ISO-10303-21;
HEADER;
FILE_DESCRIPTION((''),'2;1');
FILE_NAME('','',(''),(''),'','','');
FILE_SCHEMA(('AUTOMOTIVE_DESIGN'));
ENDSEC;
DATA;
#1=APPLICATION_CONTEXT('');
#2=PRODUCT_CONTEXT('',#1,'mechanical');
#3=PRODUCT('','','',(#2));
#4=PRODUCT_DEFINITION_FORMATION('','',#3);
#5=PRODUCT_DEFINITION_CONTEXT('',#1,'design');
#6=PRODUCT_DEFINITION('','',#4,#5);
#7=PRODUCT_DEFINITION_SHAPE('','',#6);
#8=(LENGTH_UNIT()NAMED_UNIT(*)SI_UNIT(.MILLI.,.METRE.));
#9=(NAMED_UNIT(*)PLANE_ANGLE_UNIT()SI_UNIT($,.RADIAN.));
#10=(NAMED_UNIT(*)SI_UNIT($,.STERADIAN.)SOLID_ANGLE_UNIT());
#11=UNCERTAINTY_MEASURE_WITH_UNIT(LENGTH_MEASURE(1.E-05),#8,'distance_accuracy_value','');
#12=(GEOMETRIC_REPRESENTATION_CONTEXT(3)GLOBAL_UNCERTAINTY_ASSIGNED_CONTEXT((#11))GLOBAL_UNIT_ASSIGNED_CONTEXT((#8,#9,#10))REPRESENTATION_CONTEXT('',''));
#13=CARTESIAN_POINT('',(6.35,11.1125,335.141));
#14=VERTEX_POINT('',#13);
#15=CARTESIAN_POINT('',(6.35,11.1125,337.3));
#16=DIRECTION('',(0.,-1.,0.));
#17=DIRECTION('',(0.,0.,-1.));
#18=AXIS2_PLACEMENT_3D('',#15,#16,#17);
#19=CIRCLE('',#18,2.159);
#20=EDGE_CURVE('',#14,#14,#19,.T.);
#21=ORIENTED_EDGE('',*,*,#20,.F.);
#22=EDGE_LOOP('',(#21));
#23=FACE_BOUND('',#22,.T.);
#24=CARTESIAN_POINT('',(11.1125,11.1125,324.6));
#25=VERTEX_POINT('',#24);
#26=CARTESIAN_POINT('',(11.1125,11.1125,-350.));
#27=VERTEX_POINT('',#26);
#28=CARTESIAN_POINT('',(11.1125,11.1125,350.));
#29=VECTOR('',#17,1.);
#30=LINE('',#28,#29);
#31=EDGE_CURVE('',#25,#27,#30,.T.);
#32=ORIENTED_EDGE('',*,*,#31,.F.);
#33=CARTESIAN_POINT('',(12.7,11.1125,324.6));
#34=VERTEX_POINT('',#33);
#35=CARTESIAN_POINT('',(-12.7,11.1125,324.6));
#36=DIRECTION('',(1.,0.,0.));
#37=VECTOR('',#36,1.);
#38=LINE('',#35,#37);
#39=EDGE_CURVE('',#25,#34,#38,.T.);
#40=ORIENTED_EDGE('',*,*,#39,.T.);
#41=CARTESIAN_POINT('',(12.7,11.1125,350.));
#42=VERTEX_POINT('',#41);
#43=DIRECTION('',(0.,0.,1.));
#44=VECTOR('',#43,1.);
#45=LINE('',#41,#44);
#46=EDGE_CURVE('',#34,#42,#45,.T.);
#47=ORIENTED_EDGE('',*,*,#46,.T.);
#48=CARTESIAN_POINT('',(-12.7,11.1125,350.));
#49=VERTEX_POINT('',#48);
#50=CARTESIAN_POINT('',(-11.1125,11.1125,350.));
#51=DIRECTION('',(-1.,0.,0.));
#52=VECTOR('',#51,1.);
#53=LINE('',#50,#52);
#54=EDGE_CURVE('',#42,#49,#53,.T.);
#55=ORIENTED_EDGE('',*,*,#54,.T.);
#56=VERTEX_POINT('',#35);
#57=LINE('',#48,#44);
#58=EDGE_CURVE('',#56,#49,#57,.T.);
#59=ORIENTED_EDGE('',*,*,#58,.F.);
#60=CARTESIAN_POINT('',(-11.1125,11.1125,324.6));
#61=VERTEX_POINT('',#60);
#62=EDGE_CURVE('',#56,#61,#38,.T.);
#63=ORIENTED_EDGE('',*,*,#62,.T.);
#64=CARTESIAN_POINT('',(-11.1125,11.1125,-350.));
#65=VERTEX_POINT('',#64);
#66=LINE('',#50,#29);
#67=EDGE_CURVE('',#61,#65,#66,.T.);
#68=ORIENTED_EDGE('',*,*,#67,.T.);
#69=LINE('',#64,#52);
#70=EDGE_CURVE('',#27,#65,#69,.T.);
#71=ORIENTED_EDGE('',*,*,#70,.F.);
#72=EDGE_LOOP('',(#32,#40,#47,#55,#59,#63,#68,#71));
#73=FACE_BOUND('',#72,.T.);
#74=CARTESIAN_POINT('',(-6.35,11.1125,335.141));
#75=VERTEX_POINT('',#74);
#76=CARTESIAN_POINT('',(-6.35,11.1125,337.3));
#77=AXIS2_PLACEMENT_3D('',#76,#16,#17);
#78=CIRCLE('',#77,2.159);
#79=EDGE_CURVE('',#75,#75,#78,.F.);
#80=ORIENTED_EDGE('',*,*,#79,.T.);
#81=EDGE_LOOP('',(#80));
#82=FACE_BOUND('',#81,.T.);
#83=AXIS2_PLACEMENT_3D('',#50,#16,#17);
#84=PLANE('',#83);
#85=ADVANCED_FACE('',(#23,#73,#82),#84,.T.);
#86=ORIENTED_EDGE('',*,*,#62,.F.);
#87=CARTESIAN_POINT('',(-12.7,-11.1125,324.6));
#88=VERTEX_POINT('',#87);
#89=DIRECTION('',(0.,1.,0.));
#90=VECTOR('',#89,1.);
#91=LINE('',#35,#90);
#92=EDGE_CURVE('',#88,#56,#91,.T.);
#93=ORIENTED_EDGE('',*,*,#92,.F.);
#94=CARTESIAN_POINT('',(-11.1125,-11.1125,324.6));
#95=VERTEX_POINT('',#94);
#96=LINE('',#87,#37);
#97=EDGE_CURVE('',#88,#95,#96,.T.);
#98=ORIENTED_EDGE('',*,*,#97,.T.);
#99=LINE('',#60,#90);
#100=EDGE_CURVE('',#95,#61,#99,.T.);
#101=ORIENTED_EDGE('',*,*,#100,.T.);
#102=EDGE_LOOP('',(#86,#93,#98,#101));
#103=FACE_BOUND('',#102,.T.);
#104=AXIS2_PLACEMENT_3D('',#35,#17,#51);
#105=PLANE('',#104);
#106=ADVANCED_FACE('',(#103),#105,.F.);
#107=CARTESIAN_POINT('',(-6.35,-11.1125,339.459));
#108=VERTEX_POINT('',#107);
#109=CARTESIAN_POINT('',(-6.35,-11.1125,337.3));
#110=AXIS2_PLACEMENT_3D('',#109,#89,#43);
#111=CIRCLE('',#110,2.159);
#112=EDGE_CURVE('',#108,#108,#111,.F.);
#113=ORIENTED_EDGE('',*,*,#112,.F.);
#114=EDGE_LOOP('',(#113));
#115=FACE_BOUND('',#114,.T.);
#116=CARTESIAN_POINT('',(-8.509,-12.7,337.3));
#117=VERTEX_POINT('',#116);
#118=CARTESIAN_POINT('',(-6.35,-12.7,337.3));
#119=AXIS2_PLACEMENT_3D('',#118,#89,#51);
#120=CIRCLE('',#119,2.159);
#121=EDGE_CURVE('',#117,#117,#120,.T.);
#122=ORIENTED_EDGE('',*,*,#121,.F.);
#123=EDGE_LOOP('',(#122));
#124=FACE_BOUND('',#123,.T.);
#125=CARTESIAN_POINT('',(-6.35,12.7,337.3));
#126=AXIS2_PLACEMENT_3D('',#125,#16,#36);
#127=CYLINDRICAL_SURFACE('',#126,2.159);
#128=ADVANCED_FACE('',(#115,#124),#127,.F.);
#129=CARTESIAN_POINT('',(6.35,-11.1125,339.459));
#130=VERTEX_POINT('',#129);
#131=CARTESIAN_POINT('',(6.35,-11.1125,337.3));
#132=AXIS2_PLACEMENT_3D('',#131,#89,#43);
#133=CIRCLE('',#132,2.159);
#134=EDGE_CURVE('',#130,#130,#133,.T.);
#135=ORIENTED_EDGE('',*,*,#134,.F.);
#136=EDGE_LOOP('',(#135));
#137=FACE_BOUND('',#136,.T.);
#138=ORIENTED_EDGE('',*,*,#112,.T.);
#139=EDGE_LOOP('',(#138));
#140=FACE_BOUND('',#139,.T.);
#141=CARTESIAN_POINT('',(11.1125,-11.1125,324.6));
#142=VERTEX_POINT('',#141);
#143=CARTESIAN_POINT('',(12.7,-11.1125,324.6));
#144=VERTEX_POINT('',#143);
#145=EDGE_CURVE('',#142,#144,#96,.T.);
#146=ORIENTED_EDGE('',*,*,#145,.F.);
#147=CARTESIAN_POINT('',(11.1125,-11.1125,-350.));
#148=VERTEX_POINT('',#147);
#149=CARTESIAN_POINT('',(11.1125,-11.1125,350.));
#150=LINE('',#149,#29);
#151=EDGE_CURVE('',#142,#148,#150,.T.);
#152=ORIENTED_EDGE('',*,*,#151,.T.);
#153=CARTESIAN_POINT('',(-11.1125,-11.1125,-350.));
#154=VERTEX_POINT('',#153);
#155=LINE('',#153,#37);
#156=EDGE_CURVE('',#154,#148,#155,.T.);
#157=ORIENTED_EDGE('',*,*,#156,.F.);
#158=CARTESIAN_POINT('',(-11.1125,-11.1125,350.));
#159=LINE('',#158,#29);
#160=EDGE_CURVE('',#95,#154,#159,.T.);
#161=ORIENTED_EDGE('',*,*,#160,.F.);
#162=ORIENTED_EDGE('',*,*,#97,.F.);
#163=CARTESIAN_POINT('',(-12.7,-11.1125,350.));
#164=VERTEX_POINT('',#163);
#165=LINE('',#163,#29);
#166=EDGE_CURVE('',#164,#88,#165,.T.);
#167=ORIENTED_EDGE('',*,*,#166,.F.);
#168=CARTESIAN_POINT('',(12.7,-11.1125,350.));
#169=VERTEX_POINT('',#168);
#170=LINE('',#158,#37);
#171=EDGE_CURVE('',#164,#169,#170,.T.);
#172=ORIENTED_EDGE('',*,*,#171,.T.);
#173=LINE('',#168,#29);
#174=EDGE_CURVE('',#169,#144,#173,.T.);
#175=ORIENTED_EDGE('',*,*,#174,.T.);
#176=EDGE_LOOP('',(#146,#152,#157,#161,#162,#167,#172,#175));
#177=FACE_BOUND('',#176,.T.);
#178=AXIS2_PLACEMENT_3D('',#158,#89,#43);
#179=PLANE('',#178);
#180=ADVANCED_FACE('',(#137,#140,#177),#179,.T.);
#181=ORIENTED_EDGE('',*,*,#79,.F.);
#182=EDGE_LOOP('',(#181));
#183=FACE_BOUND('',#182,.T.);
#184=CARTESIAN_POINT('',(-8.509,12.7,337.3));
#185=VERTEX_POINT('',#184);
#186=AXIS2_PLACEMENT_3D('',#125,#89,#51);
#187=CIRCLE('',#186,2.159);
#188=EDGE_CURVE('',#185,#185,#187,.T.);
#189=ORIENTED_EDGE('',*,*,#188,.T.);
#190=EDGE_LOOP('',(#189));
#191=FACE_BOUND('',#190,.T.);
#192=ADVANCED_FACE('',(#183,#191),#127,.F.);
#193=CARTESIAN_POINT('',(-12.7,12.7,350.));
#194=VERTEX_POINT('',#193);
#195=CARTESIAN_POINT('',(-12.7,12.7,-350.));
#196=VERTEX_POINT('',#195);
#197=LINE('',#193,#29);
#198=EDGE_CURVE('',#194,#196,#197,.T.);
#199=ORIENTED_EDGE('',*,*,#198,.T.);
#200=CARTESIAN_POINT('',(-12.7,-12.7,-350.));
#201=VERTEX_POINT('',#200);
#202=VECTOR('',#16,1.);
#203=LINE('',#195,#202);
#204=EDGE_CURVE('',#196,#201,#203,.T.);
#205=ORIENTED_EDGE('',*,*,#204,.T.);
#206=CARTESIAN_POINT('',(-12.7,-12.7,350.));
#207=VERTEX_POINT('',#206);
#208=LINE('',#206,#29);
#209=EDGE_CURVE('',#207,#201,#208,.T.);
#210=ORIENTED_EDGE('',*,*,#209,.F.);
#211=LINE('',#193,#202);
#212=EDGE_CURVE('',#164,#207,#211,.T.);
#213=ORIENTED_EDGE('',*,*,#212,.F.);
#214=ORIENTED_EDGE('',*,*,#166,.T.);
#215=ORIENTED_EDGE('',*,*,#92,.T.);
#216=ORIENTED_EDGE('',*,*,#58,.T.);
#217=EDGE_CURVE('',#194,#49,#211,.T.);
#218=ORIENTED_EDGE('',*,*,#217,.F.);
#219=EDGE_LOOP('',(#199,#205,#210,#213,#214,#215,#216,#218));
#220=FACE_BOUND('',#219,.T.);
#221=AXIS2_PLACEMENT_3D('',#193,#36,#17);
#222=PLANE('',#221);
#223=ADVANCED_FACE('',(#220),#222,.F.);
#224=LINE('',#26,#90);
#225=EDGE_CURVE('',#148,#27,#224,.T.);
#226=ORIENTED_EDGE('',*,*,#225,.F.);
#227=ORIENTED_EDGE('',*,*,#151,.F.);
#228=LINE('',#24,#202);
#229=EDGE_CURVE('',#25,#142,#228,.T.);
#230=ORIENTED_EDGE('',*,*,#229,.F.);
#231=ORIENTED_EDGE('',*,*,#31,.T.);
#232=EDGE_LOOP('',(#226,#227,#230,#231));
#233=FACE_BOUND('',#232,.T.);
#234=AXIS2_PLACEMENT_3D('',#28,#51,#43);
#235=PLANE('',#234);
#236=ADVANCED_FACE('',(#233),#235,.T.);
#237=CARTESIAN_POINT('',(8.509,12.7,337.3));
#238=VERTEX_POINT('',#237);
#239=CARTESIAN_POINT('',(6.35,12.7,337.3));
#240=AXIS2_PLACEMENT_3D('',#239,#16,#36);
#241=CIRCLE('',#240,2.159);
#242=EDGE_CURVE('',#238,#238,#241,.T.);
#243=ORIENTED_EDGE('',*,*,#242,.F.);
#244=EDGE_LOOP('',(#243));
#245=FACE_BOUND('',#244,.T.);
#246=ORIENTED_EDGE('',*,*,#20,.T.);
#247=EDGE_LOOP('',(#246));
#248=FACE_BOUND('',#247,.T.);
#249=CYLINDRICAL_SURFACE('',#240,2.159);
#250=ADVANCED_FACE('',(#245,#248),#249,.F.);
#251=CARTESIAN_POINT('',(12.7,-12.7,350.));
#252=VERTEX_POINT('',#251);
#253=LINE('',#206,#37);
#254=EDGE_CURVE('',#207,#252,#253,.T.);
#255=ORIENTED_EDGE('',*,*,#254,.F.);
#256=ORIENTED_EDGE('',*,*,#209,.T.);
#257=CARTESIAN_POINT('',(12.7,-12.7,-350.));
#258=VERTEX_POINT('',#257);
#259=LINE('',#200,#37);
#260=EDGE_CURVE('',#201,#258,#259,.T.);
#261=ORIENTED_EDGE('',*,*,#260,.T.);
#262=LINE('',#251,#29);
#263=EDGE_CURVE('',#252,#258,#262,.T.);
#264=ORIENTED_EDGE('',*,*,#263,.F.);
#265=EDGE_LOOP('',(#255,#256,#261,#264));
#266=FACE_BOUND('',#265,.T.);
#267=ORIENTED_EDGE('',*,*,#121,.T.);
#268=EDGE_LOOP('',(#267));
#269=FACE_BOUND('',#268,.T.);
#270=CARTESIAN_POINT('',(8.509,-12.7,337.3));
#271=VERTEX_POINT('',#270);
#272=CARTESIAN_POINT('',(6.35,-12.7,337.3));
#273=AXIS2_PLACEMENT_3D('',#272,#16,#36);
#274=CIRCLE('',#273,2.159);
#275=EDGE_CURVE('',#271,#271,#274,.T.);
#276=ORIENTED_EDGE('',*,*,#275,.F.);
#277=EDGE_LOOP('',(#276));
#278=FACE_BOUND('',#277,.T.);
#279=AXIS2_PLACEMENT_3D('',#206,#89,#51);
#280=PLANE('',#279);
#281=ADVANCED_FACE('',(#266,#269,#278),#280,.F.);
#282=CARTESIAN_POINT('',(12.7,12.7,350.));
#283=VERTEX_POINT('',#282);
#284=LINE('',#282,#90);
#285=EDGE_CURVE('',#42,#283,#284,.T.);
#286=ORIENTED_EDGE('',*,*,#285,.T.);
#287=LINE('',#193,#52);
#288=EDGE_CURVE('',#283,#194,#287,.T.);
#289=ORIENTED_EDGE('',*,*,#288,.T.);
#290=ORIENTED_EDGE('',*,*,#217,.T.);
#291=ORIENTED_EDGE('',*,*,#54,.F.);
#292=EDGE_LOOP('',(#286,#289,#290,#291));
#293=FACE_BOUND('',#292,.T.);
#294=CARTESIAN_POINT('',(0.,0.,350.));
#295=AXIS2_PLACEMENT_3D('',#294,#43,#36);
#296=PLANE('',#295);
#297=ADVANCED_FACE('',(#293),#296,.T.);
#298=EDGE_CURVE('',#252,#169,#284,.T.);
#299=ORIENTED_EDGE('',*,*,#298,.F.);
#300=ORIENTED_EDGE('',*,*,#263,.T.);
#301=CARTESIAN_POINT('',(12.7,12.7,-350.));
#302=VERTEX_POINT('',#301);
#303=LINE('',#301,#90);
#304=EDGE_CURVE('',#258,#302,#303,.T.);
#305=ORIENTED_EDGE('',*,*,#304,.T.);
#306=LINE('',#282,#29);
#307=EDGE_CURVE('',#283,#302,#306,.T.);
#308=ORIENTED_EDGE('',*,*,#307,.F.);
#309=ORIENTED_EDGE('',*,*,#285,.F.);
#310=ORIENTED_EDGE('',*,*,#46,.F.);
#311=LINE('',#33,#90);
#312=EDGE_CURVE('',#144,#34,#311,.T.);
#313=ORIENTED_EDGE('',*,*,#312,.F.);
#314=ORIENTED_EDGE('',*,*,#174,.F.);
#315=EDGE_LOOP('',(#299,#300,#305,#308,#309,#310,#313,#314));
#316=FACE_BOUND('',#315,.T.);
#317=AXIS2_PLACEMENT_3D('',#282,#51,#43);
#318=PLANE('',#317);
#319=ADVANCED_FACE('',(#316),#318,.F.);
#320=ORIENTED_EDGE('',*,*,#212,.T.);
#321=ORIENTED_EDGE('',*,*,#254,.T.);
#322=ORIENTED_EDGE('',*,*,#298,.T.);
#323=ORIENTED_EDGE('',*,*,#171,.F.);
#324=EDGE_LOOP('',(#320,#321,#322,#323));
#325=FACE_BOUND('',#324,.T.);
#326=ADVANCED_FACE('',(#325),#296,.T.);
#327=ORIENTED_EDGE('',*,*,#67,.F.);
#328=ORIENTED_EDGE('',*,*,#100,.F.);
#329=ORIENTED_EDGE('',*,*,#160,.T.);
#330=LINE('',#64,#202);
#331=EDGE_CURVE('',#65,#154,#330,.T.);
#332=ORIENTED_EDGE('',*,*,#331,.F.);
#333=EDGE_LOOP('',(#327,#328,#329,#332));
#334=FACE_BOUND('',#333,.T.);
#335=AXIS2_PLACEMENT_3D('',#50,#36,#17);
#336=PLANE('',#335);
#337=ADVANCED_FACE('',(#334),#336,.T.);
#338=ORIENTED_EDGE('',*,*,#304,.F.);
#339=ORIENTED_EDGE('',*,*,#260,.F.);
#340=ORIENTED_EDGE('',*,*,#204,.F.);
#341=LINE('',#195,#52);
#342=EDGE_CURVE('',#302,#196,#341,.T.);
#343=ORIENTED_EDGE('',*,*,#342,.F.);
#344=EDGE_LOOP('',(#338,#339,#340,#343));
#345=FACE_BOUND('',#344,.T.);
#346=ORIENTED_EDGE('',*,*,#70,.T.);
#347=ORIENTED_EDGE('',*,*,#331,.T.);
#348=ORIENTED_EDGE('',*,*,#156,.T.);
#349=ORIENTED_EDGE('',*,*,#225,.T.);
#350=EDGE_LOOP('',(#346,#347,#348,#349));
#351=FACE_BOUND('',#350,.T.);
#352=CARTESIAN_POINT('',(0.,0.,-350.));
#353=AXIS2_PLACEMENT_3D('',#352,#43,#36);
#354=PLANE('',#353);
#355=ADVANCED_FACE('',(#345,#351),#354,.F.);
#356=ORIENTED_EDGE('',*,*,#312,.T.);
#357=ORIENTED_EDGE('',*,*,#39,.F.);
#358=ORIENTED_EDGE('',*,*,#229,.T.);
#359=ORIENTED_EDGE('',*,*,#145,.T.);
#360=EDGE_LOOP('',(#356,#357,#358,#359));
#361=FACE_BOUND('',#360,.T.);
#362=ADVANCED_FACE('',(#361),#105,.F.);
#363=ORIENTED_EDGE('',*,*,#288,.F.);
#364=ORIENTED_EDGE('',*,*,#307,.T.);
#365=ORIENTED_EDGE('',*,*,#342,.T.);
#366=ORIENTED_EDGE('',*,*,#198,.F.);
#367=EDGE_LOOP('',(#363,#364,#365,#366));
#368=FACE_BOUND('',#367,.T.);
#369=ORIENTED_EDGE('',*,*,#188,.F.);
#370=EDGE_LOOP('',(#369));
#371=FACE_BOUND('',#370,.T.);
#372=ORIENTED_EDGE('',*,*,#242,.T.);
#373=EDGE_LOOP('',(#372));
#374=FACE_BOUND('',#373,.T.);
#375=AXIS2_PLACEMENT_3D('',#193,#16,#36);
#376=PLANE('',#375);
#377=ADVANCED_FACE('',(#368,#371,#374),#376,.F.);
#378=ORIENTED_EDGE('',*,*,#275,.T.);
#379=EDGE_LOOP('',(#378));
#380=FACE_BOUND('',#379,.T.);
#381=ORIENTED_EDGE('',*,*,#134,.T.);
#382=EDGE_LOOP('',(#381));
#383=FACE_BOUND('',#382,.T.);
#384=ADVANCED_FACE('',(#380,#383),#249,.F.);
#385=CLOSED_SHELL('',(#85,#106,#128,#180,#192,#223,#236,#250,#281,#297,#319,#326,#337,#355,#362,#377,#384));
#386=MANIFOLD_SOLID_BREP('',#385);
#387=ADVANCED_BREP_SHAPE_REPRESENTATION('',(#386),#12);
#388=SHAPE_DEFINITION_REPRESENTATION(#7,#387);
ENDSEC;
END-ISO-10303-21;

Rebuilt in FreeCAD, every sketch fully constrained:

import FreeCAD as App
import Part
import Sketcher

V = App.Vector
Q = App.Units.Quantity

doc = App.newDocument("Part")
params = doc.addObject("Spreadsheet::Sheet", "Params")
for row, (alias, value) in enumerate([
    ("sketch1_width", "1 in"),
    ("sketch1_width2", "0.875 in"),
    ("pad1_length", "700 mm"),
    ("sketch2_diameter", "0.17 in"),
    ("sketch3_height", "1 in"),
    ("sketch3_width", "0.875 in"),
], start=1):
    params.set(f"A{row}", alias)
    params.set(f"B{row}", "=" + value)
    params.setAlias(f"B{row}", alias)

body = doc.addObject("PartDesign::Body", "Body")

sketch1 = body.newObject("Sketcher::SketchObject", "Sketch")
sketch1.AttachmentSupport = (doc.getObject("XY_Plane"), [""])
sketch1.MapMode = "FlatFace"
sketch1.addGeometry([
    Part.LineSegment(V(-13, 13, 0), V(-13, -13, 0)),
    Part.LineSegment(V(-13, -13, 0), V(13, -13, 0)),
    Part.LineSegment(V(13, -13, 0), V(13, 13, 0)),
    Part.LineSegment(V(13, 13, 0), V(-13, 13, 0)),
    Part.LineSegment(V(11, -11, 0), V(-11, -11, 0)),
    Part.LineSegment(V(-11, -11, 0), V(-11, 11, 0)),
    Part.LineSegment(V(-11, 11, 0), V(11, 11, 0)),
    Part.LineSegment(V(11, 11, 0), V(11, -11, 0)),
], False)
sketch1.addConstraint([
    Sketcher.Constraint("Coincident", 0, 2, 1, 1),
    Sketcher.Constraint("Coincident", 1, 2, 2, 1),
    Sketcher.Constraint("Coincident", 2, 2, 3, 1),
    Sketcher.Constraint("Coincident", 3, 2, 0, 1),
    Sketcher.Constraint("Coincident", 4, 2, 5, 1),
    Sketcher.Constraint("Coincident", 5, 2, 6, 1),
    Sketcher.Constraint("Coincident", 6, 2, 7, 1),
    Sketcher.Constraint("Coincident", 7, 2, 4, 1),
    Sketcher.Constraint("Vertical", 0),
    Sketcher.Constraint("Horizontal", 1),
    Sketcher.Constraint("Vertical", 2),
    Sketcher.Constraint("Horizontal", 3),
    Sketcher.Constraint("Horizontal", 4),
    Sketcher.Constraint("Vertical", 5),
    Sketcher.Constraint("Horizontal", 6),
    Sketcher.Constraint("Vertical", 7),
    Sketcher.Constraint("Symmetric", 0, 2, 2, 2, -1, 1),
    Sketcher.Constraint("Symmetric", 4, 2, 6, 2, -1, 1),
    Sketcher.Constraint("Equal", 3, 0),
    Sketcher.Constraint("Equal", 6, 5),
    Sketcher.Constraint("DistanceX", 1, 1, 1, 2, Q("1 in")),
    Sketcher.Constraint("DistanceX", 4, 2, 4, 1, Q("0.875 in")),
])
sketch1.setExpression("Constraints[20]", "Params.sketch1_width")
sketch1.setExpression("Constraints[21]", "Params.sketch1_width2")
pad1 = body.newObject("PartDesign::Pad", "Pad")
pad1.Profile = sketch1
pad1.setExpression("Length", "Params.pad1_length")
pad1.Midplane = True

sketch2 = body.newObject("Sketcher::SketchObject", "Sketch001")
sketch2.AttachmentSupport = (doc.getObject("XZ_Plane"), [""])
sketch2.MapMode = "FlatFace"
sketch2.AttachmentOffset = App.Placement(V(0, 0, 0.5 * 25.4), App.Rotation())
sketch2.addGeometry(Part.Circle(V(6.3, 337.3, 0), V(0, 0, 1), 2.2), False)
sketch2.addConstraint([
    Sketcher.Constraint("Diameter", 0, Q("0.17 in")),
    Sketcher.Constraint("DistanceX", -1, 1, 0, 3, Q("0.25 in")),
    Sketcher.Constraint("DistanceY", -1, 1, 0, 3, 337.3),
])
sketch2.setExpression("Constraints[0]", "Params.sketch2_diameter")
pocket1 = body.newObject("PartDesign::Pocket", "Pocket")
pocket1.Profile = sketch2
pocket1.Type = "ThroughAll"
doc.recompute()

mirrored = body.newObject("PartDesign::Mirrored", "Mirrored")
mirrored.Originals = [pocket1]
mirrored.MirrorPlane = (doc.getObject("YZ_Plane"), [""])
body.Tip = mirrored

sketch3 = body.newObject("Sketcher::SketchObject", "Sketch002")
sketch3.AttachmentSupport = (doc.getObject("YZ_Plane"), [""])
sketch3.MapMode = "FlatFace"
sketch3.AttachmentOffset = App.Placement(V(0, 0, 0.5 * 25.4), App.Rotation())
sketch3.addGeometry([
    Part.LineSegment(V(11, 350, 0), V(-11, 350, 0)),
    Part.LineSegment(V(-11, 350, 0), V(-11, 325, 0)),
    Part.LineSegment(V(-11, 325, 0), V(11, 325, 0)),
    Part.LineSegment(V(11, 325, 0), V(11, 350, 0)),
], False)
sketch3.addConstraint([
    Sketcher.Constraint("Coincident", 0, 2, 1, 1),
    Sketcher.Constraint("Coincident", 1, 2, 2, 1),
    Sketcher.Constraint("Coincident", 2, 2, 3, 1),
    Sketcher.Constraint("Coincident", 3, 2, 0, 1),
    Sketcher.Constraint("Horizontal", 0),
    Sketcher.Constraint("Vertical", 1),
    Sketcher.Constraint("Horizontal", 2),
    Sketcher.Constraint("Vertical", 3),
    Sketcher.Constraint("DistanceY", 1, 2, 1, 1, Q("1 in")),
    Sketcher.Constraint("DistanceX", 0, 2, 0, 1, Q("0.875 in")),
    Sketcher.Constraint("DistanceX", 0, 2, -1, 1, Q("0.4375 in")),
    Sketcher.Constraint("DistanceY", -1, 1, 0, 2, 350.0),
])
sketch3.setExpression("Constraints[8]", "Params.sketch3_height")
sketch3.setExpression("Constraints[9]", "Params.sketch3_width")
pocket2 = body.newObject("PartDesign::Pocket", "Pocket001")
pocket2.Profile = sketch3
pocket2.Type = "ThroughAll"

doc.recompute()
